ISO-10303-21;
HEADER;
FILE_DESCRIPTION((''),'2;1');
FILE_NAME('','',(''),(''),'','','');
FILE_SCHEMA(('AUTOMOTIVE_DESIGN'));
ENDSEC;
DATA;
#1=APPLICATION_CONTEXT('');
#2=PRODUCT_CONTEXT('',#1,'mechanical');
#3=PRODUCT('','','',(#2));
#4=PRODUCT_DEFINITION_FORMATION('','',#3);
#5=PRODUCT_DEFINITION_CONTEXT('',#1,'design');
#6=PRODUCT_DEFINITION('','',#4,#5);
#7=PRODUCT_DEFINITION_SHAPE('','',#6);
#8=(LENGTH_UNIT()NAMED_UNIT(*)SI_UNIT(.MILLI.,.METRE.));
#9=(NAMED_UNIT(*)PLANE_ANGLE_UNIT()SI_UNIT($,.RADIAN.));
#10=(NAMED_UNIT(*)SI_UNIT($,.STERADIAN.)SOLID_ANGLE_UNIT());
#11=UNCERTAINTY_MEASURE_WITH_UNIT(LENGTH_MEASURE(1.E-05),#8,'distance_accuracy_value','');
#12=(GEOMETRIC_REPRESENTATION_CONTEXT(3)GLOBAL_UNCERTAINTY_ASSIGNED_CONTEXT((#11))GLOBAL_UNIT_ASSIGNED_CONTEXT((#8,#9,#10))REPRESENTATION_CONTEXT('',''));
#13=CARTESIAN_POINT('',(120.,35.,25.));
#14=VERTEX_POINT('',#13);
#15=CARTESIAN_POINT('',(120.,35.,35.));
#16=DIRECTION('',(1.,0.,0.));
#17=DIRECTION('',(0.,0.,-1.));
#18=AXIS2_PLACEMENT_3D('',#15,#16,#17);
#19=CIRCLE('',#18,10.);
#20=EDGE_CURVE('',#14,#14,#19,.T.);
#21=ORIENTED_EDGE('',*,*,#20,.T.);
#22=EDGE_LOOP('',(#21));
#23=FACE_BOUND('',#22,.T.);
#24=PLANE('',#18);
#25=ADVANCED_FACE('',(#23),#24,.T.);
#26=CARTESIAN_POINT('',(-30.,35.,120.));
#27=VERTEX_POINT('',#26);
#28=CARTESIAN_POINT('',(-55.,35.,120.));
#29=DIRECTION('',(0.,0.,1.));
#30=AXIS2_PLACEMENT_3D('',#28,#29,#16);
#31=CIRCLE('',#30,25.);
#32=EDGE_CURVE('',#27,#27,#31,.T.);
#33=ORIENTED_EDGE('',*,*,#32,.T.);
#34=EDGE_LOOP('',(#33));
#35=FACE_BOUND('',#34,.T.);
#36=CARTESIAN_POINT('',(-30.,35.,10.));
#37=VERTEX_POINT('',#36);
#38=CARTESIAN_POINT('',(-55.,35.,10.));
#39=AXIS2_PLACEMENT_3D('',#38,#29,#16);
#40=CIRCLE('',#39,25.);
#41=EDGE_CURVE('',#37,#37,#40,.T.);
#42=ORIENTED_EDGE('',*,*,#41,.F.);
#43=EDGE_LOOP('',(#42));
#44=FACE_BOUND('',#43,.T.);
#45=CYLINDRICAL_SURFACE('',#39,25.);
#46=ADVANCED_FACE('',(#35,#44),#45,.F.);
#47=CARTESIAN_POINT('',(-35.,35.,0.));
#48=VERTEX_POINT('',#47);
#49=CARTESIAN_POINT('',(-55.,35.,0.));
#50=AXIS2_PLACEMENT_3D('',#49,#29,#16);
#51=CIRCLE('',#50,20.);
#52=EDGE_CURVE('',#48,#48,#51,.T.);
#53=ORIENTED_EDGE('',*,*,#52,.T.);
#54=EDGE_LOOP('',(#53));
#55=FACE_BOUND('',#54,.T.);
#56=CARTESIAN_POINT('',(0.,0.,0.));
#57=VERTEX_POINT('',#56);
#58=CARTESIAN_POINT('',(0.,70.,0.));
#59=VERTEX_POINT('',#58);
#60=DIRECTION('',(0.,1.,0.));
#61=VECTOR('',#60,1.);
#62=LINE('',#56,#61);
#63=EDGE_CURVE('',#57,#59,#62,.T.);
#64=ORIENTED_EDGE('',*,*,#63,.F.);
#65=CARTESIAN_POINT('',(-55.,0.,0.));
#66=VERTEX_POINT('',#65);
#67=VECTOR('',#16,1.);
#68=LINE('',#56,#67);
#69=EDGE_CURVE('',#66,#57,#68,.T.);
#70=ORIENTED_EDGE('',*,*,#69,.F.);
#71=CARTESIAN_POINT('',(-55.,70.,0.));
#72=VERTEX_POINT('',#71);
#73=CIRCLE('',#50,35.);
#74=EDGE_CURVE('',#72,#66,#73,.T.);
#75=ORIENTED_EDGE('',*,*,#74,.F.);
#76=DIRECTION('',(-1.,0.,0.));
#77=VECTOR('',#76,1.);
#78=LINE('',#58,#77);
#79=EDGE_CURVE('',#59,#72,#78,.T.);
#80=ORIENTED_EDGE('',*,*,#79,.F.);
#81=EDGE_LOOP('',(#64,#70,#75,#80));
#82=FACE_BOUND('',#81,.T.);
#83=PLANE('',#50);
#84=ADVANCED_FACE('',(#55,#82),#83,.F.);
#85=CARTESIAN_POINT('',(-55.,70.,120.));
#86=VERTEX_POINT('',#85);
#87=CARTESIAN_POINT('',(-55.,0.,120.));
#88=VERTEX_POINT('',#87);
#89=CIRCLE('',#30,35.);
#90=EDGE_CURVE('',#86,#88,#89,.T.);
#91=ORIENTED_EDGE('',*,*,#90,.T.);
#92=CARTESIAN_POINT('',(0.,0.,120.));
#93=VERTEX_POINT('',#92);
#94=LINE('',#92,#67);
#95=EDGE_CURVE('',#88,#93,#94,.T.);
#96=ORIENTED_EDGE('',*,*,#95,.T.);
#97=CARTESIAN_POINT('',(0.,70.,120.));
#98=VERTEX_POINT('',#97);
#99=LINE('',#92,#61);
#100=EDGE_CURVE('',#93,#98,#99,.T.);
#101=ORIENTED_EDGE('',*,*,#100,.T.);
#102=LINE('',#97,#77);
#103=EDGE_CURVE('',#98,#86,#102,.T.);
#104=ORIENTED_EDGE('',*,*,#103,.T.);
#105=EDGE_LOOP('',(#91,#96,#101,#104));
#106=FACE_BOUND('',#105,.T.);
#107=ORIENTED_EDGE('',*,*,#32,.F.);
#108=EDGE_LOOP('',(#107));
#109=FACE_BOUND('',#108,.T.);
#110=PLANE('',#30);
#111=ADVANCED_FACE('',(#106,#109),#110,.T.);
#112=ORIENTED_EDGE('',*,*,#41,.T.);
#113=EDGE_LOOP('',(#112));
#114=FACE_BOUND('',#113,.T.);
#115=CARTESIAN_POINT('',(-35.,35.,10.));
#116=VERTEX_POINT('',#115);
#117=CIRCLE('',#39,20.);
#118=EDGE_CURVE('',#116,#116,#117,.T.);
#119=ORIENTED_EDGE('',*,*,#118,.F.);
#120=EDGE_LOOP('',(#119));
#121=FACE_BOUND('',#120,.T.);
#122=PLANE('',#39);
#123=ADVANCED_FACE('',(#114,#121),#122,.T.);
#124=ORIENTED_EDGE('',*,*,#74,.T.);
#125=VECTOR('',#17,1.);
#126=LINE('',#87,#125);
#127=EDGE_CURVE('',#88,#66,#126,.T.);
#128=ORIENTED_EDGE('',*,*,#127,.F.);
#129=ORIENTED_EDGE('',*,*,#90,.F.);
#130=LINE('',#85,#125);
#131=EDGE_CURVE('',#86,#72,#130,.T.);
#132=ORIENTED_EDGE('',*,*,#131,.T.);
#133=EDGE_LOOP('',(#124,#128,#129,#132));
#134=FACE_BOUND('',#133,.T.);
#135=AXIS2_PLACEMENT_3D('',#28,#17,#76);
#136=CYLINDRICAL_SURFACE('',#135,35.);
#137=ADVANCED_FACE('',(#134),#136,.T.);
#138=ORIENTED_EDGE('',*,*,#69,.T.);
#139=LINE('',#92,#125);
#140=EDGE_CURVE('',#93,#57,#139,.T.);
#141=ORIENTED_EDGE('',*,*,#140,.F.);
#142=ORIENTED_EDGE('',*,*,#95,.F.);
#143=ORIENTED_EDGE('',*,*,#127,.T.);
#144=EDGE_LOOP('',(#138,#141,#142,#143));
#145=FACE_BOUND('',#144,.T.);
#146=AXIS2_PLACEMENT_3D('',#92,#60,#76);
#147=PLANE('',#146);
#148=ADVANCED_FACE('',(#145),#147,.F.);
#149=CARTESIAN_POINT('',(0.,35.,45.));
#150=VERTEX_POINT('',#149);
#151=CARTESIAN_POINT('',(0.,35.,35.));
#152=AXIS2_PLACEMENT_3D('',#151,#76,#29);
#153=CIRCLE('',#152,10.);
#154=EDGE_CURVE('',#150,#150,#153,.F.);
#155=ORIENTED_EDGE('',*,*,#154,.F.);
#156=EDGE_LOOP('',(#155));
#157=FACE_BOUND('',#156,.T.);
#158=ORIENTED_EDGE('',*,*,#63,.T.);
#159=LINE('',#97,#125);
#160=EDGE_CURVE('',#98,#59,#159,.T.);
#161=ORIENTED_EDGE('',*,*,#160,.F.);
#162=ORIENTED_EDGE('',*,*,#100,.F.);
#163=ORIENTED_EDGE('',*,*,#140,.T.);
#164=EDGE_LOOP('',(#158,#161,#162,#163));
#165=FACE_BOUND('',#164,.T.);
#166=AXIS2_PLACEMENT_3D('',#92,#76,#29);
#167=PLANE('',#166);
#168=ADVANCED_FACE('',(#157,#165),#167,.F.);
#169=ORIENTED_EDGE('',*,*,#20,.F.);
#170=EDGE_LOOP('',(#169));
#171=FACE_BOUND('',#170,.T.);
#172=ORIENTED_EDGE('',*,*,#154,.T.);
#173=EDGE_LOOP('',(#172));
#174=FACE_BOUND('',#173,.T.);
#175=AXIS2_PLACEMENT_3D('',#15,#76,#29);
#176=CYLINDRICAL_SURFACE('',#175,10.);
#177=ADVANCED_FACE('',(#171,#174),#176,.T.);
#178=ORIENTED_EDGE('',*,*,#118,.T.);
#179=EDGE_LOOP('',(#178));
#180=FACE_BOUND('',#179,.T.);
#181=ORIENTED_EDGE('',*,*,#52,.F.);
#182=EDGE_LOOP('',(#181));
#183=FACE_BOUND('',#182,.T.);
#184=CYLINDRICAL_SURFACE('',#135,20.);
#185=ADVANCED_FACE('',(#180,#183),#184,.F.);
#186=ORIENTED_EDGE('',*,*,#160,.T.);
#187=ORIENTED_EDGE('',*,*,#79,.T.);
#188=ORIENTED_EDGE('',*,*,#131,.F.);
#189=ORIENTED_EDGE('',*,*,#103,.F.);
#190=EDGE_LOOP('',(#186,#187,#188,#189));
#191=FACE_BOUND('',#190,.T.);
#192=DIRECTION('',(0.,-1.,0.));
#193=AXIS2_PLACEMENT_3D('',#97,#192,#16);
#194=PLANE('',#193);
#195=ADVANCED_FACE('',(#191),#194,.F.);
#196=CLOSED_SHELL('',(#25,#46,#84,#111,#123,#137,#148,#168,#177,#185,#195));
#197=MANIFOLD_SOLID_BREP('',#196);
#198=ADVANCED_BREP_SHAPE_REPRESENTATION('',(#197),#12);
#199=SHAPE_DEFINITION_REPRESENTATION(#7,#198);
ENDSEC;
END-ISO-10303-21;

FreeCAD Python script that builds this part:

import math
import FreeCAD as App
import Part
import Sketcher

V = App.Vector
Q = App.Units.Quantity

doc = App.newDocument("Part")
body = doc.addObject("PartDesign::Body", "Body")

# Sketch on XY plane
sketch1 = body.newObject("Sketcher::SketchObject", "Sketch")
sketch1.AttachmentSupport = (doc.getObject("XY_Plane"), [""])
sketch1.MapMode = "FlatFace"
sketch1.addGeometry(Part.LineSegment(V(-55, 0, 0), V(0, 0, 0)), False)
sketch1.addGeometry(Part.LineSegment(V(0, 0, 0), V(0, 70, 0)), False)
sketch1.addGeometry(Part.LineSegment(V(0, 70, 0), V(-55, 70, 0)), False)
sketch1.addGeometry(Part.ArcOfCircle(Part.Circle(V(-55, 35, 0), V(0, 0, 1), 35), math.radians(90), math.radians(270)), False)
sketch1.addGeometry(Part.Circle(V(-55, 35, 0), V(0, 0, 1), 20), False)
sketch1.addConstraint(Sketcher.Constraint("Coincident", 0, 2, 1, 1))
sketch1.addConstraint(Sketcher.Constraint("Coincident", 1, 2, 2, 1))
sketch1.addConstraint(Sketcher.Constraint("Tangent", 2, 2, 3, 1))
sketch1.addConstraint(Sketcher.Constraint("Tangent", 3, 2, 0, 1))
sketch1.addConstraint(Sketcher.Constraint("Horizontal", 0))
sketch1.addConstraint(Sketcher.Constraint("Vertical", 1))
sketch1.addConstraint(Sketcher.Constraint("Horizontal", 2))
sketch1.addConstraint(Sketcher.Constraint("Coincident", 0, 2, -1, 1))
sketch1.addConstraint(Sketcher.Constraint("Coincident", 4, 3, 3, 3))
sketch1.addConstraint(Sketcher.Constraint("Diameter", 4, Q("40 mm")))
sketch1.addConstraint(Sketcher.Constraint("Radius", 3, Q("35 mm")))
sketch1.addConstraint(Sketcher.Constraint("DistanceX", 0, 1, 0, 2, Q("55 mm")))
pad1 = body.newObject("PartDesign::Pad", "Pad")
pad1.Profile = sketch1
pad1.Length = 120

# Sketch on XY plane
sketch2 = body.newObject("Sketcher::SketchObject", "Sketch001")
sketch2.AttachmentSupport = (doc.getObject("XY_Plane"), [""])
sketch2.MapMode = "FlatFace"
sketch2.AttachmentOffset = App.Placement(V(0, 0, 120), App.Rotation())
sketch2.addGeometry(Part.Circle(V(-55, 35, 0), V(0, 0, 1), 25), False)
sketch2.addConstraint(Sketcher.Constraint("Diameter", 0, Q("50 mm")))
sketch2.addConstraint(Sketcher.Constraint("DistanceX", 0, 3, -1, 1, Q("55 mm")))
sketch2.addConstraint(Sketcher.Constraint("DistanceY", -1, 1, 0, 3, Q("35 mm")))
pocket1 = body.newObject("PartDesign::Pocket", "Pocket")
pocket1.Profile = sketch2
pocket1.Length = 110

# Sketch on YZ plane
sketch3 = body.newObject("Sketcher::SketchObject", "Sketch002")
sketch3.AttachmentSupport = (doc.getObject("YZ_Plane"), [""])
sketch3.MapMode = "FlatFace"
sketch3.addGeometry(Part.Circle(V(35, 35, 0), V(0, 0, 1), 10), False)
sketch3.addConstraint(Sketcher.Constraint("Diameter", 0, Q("20 mm")))
sketch3.addConstraint(Sketcher.Constraint("DistanceX", -1, 1, 0, 3, Q("35 mm")))
sketch3.addConstraint(Sketcher.Constraint("DistanceY", -1, 1, 0, 3, Q("35 mm")))
pad2 = body.newObject("PartDesign::Pad", "Pad001")
pad2.Profile = sketch3
pad2.Length = 120

doc.recompute()
